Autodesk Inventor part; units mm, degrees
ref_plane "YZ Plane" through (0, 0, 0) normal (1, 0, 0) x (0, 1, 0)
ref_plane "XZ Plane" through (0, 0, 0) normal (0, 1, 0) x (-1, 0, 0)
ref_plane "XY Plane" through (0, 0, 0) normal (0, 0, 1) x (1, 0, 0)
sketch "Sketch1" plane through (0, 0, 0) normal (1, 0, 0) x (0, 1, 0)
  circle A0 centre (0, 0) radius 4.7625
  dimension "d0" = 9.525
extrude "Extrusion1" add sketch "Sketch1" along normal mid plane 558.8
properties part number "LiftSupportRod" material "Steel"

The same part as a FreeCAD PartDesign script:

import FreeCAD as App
import Part
import Sketcher
Q = App.Units.Quantity

doc = App.newDocument("Part")
params = doc.addObject("Spreadsheet::Sheet", "Params")
for row, (alias, value) in enumerate([
    ("sketch1_diameter", "0.375 in"),
    ("pad1_length", "22 in"),
], start=1):
    params.set(f"A{row}", alias)
    params.set(f"B{row}", "=" + value)
    params.setAlias(f"B{row}", alias)

body = doc.addObject("PartDesign::Body", "Body")

# Sketch on YZ plane
sketch1 = body.newObject("Sketcher::SketchObject", "Sketch")
sketch1.AttachmentSupport = (doc.getObject("YZ_Plane"), [""])
sketch1.MapMode = "FlatFace"
sketch1.addGeometry(Part.Circle(App.Vector(0, 0, 0), App.Vector(0, 0, 1), 4.7625), False)
sketch1.addConstraint([
    Sketcher.Constraint("Coincident", 0, 3, -1, 1),
    Sketcher.Constraint("Diameter", 0, Q("0.375 in")),
])
sketch1.setExpression("Constraints[1]", "Params.sketch1_diameter")
pad1 = body.newObject("PartDesign::Pad", "Pad")
pad1.Profile = sketch1
pad1.setExpression("Length", "Params.pad1_length")
pad1.Midplane = True

doc.recompute()
